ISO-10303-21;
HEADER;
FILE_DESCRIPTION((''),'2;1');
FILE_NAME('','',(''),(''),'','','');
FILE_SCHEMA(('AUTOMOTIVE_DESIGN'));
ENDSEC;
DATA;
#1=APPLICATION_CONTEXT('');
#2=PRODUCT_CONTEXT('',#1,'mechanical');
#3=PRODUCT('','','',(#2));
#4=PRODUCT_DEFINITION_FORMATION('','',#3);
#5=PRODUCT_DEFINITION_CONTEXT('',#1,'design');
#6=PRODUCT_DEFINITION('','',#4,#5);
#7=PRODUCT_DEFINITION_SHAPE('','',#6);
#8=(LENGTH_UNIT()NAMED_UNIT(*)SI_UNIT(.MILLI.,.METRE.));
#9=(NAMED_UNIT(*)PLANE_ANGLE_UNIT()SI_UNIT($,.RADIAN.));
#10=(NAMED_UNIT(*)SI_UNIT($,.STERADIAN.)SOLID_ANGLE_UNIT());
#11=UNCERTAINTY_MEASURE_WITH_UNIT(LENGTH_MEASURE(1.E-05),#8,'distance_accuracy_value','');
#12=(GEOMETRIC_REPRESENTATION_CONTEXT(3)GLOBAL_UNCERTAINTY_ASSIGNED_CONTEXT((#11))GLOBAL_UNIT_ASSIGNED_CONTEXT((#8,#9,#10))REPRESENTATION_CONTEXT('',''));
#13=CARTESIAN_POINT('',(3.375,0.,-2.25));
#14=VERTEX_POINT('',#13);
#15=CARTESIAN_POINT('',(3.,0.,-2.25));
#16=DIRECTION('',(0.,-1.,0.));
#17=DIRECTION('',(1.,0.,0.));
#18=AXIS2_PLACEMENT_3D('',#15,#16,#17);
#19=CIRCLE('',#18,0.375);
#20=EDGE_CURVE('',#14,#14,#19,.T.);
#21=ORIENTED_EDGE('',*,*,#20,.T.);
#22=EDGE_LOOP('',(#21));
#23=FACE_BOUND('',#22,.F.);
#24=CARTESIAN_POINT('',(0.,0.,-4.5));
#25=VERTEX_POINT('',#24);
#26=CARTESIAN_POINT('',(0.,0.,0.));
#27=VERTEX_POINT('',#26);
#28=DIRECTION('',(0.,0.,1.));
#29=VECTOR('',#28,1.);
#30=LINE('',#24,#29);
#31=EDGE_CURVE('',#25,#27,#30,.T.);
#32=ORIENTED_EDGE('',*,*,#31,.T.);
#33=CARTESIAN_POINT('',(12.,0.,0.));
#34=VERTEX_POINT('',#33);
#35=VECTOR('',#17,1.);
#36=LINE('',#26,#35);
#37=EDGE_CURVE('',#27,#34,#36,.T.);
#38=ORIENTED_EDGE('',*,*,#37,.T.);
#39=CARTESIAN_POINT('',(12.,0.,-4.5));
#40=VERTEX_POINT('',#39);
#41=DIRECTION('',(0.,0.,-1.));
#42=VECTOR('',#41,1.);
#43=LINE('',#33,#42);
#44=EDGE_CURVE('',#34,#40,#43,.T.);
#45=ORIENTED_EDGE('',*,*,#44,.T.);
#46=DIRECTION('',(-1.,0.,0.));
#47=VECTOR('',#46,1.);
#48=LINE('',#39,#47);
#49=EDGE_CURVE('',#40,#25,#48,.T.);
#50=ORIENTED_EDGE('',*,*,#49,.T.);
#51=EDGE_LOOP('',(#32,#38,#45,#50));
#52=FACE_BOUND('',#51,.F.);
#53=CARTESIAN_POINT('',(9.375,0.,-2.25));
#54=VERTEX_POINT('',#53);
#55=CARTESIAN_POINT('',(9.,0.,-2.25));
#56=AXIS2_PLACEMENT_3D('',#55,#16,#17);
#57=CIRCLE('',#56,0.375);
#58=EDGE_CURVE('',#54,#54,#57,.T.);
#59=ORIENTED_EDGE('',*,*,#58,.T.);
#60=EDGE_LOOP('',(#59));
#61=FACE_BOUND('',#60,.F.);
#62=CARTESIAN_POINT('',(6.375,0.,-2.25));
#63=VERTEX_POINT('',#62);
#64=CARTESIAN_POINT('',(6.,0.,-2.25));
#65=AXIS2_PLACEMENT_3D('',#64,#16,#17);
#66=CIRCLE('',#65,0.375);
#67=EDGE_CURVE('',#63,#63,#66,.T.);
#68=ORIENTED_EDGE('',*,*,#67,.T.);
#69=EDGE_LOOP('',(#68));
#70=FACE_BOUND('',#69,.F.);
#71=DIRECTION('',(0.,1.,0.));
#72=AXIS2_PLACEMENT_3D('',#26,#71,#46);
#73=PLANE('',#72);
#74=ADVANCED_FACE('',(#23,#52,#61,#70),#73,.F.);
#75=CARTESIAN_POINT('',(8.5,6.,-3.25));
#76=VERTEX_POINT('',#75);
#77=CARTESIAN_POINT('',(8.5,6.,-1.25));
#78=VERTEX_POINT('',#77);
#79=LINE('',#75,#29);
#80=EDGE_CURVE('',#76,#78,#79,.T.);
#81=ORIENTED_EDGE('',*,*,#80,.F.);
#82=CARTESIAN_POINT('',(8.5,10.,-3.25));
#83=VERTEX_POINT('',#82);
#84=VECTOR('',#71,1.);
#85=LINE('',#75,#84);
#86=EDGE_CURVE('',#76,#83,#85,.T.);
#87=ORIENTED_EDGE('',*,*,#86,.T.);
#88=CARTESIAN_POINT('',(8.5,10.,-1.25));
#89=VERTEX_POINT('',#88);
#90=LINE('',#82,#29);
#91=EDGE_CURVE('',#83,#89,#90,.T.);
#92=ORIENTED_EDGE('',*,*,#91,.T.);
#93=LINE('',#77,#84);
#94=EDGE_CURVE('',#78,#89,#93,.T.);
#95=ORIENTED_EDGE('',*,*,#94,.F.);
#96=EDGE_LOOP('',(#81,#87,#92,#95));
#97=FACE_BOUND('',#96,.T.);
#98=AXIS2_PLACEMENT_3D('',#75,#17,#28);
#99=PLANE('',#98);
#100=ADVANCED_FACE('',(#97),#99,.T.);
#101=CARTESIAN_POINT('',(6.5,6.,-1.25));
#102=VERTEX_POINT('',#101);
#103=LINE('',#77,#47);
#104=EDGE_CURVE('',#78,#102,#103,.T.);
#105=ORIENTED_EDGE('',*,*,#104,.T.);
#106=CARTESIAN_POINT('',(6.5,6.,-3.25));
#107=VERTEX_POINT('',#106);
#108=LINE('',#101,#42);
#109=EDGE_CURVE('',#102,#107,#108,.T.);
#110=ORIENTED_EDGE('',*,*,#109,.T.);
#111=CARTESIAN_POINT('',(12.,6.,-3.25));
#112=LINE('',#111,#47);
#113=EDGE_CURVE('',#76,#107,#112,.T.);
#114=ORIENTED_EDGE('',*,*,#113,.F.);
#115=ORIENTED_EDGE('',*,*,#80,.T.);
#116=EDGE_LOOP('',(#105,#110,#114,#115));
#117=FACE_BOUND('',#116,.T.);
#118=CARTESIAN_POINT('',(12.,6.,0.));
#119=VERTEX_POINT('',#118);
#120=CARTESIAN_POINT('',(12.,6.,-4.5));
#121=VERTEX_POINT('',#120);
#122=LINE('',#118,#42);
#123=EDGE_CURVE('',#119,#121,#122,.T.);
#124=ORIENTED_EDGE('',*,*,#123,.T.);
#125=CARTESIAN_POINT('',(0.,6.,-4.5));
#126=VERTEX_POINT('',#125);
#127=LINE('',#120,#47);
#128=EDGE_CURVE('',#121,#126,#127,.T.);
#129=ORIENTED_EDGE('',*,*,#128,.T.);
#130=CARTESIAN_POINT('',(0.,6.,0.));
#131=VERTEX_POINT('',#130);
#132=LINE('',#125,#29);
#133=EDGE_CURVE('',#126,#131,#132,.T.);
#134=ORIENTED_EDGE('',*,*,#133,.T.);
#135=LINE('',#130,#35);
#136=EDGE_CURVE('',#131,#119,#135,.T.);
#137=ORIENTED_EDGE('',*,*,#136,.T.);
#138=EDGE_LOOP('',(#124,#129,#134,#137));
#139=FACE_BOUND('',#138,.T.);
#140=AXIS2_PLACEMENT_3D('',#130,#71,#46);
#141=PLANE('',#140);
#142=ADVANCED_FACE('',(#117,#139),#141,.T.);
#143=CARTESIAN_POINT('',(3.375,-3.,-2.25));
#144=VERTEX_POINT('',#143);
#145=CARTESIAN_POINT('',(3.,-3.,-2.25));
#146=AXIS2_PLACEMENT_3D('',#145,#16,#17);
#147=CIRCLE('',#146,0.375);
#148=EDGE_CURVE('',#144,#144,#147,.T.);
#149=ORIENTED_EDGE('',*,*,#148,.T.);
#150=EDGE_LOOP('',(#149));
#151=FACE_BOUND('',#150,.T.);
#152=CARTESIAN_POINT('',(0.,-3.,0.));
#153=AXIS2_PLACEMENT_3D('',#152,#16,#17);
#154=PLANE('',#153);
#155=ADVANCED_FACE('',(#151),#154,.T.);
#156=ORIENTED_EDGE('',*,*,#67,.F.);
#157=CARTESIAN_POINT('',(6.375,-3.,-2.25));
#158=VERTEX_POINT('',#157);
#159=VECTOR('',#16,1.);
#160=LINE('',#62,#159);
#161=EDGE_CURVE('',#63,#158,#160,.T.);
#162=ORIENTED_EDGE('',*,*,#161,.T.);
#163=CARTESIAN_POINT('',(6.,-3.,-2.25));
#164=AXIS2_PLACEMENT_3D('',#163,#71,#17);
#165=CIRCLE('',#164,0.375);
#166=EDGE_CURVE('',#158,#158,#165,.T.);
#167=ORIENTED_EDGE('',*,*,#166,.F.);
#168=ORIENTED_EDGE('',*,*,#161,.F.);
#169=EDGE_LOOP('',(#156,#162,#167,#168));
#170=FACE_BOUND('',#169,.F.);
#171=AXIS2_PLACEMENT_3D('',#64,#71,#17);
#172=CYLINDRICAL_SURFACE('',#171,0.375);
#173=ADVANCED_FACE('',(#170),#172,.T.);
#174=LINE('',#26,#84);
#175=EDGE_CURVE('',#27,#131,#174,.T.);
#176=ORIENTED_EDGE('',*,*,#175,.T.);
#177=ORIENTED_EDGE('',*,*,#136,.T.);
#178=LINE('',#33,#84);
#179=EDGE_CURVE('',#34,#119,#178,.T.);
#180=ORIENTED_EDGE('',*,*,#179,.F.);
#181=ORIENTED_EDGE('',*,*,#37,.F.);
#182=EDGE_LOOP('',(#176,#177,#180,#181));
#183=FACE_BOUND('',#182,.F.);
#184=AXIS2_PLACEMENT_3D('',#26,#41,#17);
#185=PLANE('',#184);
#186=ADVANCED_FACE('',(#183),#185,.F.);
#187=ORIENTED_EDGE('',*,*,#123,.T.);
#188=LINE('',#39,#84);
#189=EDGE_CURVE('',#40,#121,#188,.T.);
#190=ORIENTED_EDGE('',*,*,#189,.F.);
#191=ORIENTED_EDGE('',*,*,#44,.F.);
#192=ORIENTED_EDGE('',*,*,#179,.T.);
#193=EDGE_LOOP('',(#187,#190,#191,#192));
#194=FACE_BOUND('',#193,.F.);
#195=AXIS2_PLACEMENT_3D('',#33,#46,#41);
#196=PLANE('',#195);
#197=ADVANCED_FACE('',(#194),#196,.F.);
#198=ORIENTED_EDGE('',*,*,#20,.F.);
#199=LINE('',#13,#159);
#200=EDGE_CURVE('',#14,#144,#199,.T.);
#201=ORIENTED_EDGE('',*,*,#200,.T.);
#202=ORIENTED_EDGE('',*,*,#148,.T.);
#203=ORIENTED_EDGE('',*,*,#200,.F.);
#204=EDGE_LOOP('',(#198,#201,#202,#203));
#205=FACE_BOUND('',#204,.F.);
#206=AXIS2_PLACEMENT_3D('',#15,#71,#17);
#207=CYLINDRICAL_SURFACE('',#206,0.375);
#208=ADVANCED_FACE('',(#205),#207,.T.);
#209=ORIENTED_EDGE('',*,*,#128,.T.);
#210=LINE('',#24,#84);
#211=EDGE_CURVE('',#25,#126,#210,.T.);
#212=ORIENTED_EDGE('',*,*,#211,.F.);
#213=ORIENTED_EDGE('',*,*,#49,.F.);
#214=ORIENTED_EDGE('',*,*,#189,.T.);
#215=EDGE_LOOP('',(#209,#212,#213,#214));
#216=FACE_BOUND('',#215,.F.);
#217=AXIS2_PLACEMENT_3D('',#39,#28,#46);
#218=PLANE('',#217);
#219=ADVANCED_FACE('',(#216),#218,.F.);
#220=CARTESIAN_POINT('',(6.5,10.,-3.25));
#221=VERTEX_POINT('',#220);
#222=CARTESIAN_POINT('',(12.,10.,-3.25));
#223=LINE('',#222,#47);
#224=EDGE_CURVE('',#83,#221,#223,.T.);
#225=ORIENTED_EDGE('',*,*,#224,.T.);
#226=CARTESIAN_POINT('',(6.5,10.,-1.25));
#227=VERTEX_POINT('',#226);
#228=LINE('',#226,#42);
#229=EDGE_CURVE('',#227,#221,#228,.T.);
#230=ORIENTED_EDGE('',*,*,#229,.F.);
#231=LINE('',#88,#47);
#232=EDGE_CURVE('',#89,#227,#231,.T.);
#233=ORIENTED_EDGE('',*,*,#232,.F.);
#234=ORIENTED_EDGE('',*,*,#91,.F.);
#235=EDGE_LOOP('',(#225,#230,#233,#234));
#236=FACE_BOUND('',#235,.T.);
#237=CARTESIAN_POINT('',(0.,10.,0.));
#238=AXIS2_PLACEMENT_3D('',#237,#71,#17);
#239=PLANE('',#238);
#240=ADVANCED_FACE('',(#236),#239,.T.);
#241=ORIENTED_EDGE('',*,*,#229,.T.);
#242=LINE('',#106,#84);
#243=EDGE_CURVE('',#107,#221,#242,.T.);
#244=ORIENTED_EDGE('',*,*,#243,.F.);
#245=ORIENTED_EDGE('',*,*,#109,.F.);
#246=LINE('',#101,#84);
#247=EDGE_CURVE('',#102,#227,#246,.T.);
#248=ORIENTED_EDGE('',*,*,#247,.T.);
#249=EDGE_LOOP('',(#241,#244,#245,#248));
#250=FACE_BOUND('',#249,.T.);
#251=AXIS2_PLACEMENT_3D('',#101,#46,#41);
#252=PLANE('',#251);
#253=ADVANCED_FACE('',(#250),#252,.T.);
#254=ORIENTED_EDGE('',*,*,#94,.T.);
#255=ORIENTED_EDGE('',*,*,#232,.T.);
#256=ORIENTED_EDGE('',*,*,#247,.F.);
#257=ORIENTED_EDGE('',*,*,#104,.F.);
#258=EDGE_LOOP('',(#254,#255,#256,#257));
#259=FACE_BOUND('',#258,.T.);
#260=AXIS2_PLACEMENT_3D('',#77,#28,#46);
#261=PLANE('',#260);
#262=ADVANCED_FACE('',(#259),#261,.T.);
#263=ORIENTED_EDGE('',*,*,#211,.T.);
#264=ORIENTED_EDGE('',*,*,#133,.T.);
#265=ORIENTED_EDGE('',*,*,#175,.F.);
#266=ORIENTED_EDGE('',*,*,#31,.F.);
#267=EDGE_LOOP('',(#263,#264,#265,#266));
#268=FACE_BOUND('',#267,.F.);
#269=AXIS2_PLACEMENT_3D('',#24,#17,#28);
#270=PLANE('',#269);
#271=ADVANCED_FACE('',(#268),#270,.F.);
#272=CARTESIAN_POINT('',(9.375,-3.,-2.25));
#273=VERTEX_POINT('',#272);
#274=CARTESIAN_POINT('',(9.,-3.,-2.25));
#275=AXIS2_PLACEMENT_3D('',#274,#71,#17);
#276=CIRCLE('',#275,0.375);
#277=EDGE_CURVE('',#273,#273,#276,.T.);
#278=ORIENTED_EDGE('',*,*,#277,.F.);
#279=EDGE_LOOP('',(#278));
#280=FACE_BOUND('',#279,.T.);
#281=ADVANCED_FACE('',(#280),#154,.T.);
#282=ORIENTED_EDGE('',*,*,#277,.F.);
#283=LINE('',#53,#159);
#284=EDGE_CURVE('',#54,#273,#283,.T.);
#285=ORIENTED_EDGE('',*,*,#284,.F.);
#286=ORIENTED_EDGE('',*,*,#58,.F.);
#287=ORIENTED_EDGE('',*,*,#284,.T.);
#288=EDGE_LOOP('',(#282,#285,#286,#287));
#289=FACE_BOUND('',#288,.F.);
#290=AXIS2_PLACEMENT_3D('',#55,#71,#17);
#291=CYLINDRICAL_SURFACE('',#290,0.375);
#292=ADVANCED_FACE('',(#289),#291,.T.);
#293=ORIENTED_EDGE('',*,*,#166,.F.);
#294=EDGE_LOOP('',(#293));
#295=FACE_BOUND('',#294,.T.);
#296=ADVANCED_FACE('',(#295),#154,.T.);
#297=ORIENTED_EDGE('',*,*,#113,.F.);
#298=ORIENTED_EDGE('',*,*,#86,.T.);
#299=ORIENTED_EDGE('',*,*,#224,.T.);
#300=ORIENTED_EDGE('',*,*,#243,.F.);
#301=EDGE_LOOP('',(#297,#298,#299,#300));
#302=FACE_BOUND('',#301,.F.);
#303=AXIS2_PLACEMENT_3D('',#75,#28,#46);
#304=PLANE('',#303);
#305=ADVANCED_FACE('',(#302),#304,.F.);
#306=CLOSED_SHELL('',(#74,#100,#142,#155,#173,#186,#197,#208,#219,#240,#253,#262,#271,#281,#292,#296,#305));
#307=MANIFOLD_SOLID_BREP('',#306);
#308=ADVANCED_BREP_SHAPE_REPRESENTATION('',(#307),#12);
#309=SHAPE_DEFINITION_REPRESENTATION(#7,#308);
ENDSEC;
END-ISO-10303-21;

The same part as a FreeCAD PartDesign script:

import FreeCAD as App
import Part
import Sketcher

V = App.Vector


def add_polygon(sketch, points):
    """Adds a closed chain of lines whose ends are joined by coincident constraints."""
    first, n = sketch.GeometryCount, len(points)
    for a, b in zip(points, points[1:] + points[:1]):
        sketch.addGeometry(Part.LineSegment(App.Vector(*a, 0), App.Vector(*b, 0)), False)
    for i in range(n):
        sketch.addConstraint(Sketcher.Constraint("Coincident", first + i, 2, first + (i + 1) % n, 1))

doc = App.newDocument("Part")
params = doc.addObject("Spreadsheet::Sheet", "Params")
for row, (alias, value) in enumerate([
    ("sketch1_width", "12 mm"),
    ("sketch1_height", "4.5 mm"),
    ("pad1_length", "6 mm"),
    ("sketch2_width", "2 mm"),
    ("pad2_length", "4 mm"),
    ("sketch3_diameter", "0.75 mm"),
    ("pad3_length", "3 mm"),
], start=1):
    params.set(f"A{row}", alias)
    params.set(f"B{row}", "=" + value)
    params.setAlias(f"B{row}", alias)

body = doc.addObject("PartDesign::Body", "Body")

# Sketch on XZ plane
sketch1 = body.newObject("Sketcher::SketchObject", "Sketch")
sketch1.AttachmentSupport = (doc.getObject("XZ_Plane"), [""])
sketch1.MapMode = "FlatFace"
add_polygon(sketch1, [(0, -4.5), (0, 0), (12, 0), (12, -4.5)])  # lines 0-3
sketch1.addConstraint([
    Sketcher.Constraint("Vertical", 0),
    Sketcher.Constraint("Horizontal", 1),
    Sketcher.Constraint("Vertical", 2),
    Sketcher.Constraint("Horizontal", 3),
    Sketcher.Constraint("Coincident", 0, 2, -1, 1),
    Sketcher.Constraint("DistanceX", 1, 1, 1, 2, 12.0),
    Sketcher.Constraint("DistanceY", 0, 1, 0, 2, 4.5),
])
sketch1.setExpression("Constraints[9]", "Params.sketch1_width")
sketch1.setExpression("Constraints[10]", "Params.sketch1_height")
pad1 = body.newObject("PartDesign::Pad", "Pad")
pad1.Profile = sketch1
pad1.setExpression("Length", "Params.pad1_length")
pad1.Reversed = True

# Sketch on XZ plane
sketch2 = body.newObject("Sketcher::SketchObject", "Sketch001")
sketch2.AttachmentSupport = (doc.getObject("XZ_Plane"), [""])
sketch2.MapMode = "FlatFace"
sketch2.AttachmentOffset = App.Placement(V(0, 0, -6), App.Rotation())
add_polygon(sketch2, [(8.5, -1.25), (8.5, -3.25), (6.5, -3.25), (6.5, -1.25)])  # lines 0-3
sketch2.addConstraint([
    Sketcher.Constraint("Vertical", 0),
    Sketcher.Constraint("Horizontal", 1),
    Sketcher.Constraint("Vertical", 2),
    Sketcher.Constraint("Horizontal", 3),
    Sketcher.Constraint("Equal", 3, 0),
    Sketcher.Constraint("DistanceX", 1, 2, 1, 1, 2.0),
    Sketcher.Constraint("DistanceX", -1, 1, 0, 2, 8.5),
    Sketcher.Constraint("DistanceY", 0, 2, -1, 1, 3.25),
])
sketch2.setExpression("Constraints[9]", "Params.sketch2_width")
pad2 = body.newObject("PartDesign::Pad", "Pad001")
pad2.Profile = sketch2
pad2.setExpression("Length", "Params.pad2_length")
pad2.Reversed = True

# Sketch on XZ plane
sketch3 = body.newObject("Sketcher::SketchObject", "Sketch002")
sketch3.AttachmentSupport = (doc.getObject("XZ_Plane"), [""])
sketch3.MapMode = "FlatFace"
sketch3.addGeometry([
    Part.Circle(V(6, -2.25, 0), V(0, 0, 1), 0.375),
    Part.Circle(V(9, -2.25, 0), V(0, 0, 1), 0.375),
    Part.Circle(V(3, -2.25, 0), V(0, 0, 1), 0.375),
], False)
sketch3.addConstraint([
    Sketcher.Constraint("Equal", 0, 1),
    Sketcher.Constraint("Equal", 1, 2),
    Sketcher.Constraint("Horizontal", 0, 3, 1, 3),
    Sketcher.Constraint("Horizontal", 1, 3, 2, 3),
    Sketcher.Constraint("Diameter", 0, 0.75),
    Sketcher.Constraint("DistanceX", -1, 1, 0, 3, 6.0),
    Sketcher.Constraint("DistanceX", -1, 1, 2, 3, 3.0),
    Sketcher.Constraint("DistanceX", 0, 3, 1, 3, 3.0),
    Sketcher.Constraint("DistanceY", 0, 3, -1, 1, 2.25),
])
sketch3.setExpression("Constraints[4]", "Params.sketch3_diameter")
pad3 = body.newObject("PartDesign::Pad", "Pad002")
pad3.Profile = sketch3
pad3.setExpression("Length", "Params.pad3_length")

doc.recompute()
